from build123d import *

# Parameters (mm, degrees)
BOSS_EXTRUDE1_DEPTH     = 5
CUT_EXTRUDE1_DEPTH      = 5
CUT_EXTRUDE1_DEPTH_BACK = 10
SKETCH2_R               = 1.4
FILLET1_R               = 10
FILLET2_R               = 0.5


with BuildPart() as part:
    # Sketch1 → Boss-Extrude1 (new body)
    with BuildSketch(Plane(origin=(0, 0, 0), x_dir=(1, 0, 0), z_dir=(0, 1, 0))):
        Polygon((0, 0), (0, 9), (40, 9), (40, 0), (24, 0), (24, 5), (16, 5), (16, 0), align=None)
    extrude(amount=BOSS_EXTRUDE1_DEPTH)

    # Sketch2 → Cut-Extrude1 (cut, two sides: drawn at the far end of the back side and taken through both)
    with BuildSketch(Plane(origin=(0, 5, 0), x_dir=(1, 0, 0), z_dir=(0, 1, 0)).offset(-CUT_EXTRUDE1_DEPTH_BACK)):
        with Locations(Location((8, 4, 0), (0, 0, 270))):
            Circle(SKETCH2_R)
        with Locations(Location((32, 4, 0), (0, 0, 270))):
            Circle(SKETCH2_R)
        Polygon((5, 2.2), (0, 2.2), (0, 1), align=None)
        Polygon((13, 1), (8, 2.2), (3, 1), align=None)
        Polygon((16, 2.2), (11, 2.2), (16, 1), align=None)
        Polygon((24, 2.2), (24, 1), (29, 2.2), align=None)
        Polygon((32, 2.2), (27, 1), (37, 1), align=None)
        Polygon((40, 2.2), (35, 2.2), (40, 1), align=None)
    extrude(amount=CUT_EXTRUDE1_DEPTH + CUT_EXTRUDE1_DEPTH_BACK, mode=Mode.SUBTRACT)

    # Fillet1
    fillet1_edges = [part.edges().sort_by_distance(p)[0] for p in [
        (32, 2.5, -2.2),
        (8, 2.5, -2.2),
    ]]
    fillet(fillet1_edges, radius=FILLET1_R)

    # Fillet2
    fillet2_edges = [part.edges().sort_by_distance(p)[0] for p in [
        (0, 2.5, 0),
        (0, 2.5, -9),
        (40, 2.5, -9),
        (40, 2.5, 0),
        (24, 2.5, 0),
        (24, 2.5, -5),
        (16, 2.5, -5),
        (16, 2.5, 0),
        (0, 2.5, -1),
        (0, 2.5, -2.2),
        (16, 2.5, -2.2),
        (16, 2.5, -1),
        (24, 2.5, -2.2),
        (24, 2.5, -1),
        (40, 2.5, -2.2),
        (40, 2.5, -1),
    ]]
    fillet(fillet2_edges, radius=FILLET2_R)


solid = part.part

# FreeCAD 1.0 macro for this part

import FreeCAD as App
import Part
import Sketcher
from FreeCAD import Vector
Q = App.Units.Quantity


def edges_at(feature, points):
    """Names of the edges that pass closest to the given points."""
    edges = feature.Shape.Edges
    near = lambda p: min(range(len(edges)), key=lambda i: edges[i].distToShape(Part.Vertex(*p))[0])
    return sorted({f"Edge{near(p) + 1}" for p in points})


def add_polygon(sketch, points):
    """Adds a closed chain of lines whose ends are joined by coincident constraints."""
    first, n = sketch.GeometryCount, len(points)
    for a, b in zip(points, points[1:] + points[:1]):
        sketch.addGeometry(Part.LineSegment(App.Vector(*a, 0), App.Vector(*b, 0)), False)
    for i in range(n):
        sketch.addConstraint(Sketcher.Constraint("Coincident", first + i, 2, first + (i + 1) % n, 1))

doc = App.newDocument("Part")
body = doc.addObject("PartDesign::Body", "Body")

# Sketch on XZ plane
sketch1 = body.newObject("Sketcher::SketchObject", "Sketch")
sketch1.AttachmentSupport = (doc.getObject("XZ_Plane"), [""])
sketch1.MapMode = "FlatFace"
add_polygon(sketch1, [(0, -9), (0, 0), (16, 0), (16, -5), (24, -5), (24, 0), (40, 0), (40, -9)])  # lines 0-7
sketch1.addConstraint(Sketcher.Constraint("Vertical", 0))
sketch1.addConstraint(Sketcher.Constraint("Horizontal", 1))
sketch1.addConstraint(Sketcher.Constraint("Vertical", 2))
sketch1.addConstraint(Sketcher.Constraint("Horizontal", 3))
sketch1.addConstraint(Sketcher.Constraint("Vertical", 4))
sketch1.addConstraint(Sketcher.Constraint("Horizontal", 5))
sketch1.addConstraint(Sketcher.Constraint("Vertical", 6))
sketch1.addConstraint(Sketcher.Constraint("Horizontal", 7))
sketch1.addConstraint(Sketcher.Constraint("Coincident", 0, 2, -1, 1))
sketch1.addConstraint(Sketcher.Constraint("PointOnObject", 4, 2, -1))
sketch1.addConstraint(Sketcher.Constraint("Equal", 1, 5))
sketch1.addConstraint(Sketcher.Constraint("DistanceX", 1, 1, 1, 2, Q("16 mm")))
sketch1.addConstraint(Sketcher.Constraint("DistanceX", 3, 1, 3, 2, Q("8 mm")))
sketch1.addConstraint(Sketcher.Constraint("DistanceY", 0, 1, 0, 2, Q("9 mm")))
sketch1.addConstraint(Sketcher.Constraint("DistanceY", 2, 2, 2, 1, Q("5 mm")))
pad1 = body.newObject("PartDesign::Pad", "Pad")
pad1.Profile = sketch1
pad1.Length = 5
pad1.Reversed = True

# Sketch on XZ plane
sketch2 = body.newObject("Sketcher::SketchObject", "Sketch001")
sketch2.AttachmentSupport = (doc.getObject("XZ_Plane"), [""])
sketch2.MapMode = "FlatFace"
sketch2.AttachmentOffset = App.Placement(Vector(0, 0, -5), App.Rotation())
sketch2.addGeometry(Part.Circle(Vector(8, -4, 0), Vector(0, 0, 1), 1.4), False)  # 0
sketch2.addGeometry(Part.Circle(Vector(32, -4, 0), Vector(0, 0, 1), 1.4), False)  # 1
add_polygon(sketch2, [(5, -2.2), (0, -2.2), (0, -1)])  # lines 2-4
add_polygon(sketch2, [(13, -1), (8, -2.2), (3, -1)])  # lines 5-7
add_polygon(sketch2, [(16, -2.2), (11, -2.2), (16, -1)])  # lines 8-10
add_polygon(sketch2, [(24, -2.2), (24, -1), (29, -2.2)])  # lines 11-13
add_polygon(sketch2, [(32, -2.2), (27, -1), (37, -1)])  # lines 14-16
add_polygon(sketch2, [(40, -2.2), (35, -2.2), (40, -1)])  # lines 17-19
sketch2.addConstraint(Sketcher.Constraint("Horizontal", 2))
sketch2.addConstraint(Sketcher.Constraint("Vertical", 3))
sketch2.addConstraint(Sketcher.Constraint("Horizontal", 7))
sketch2.addConstraint(Sketcher.Constraint("Horizontal", 8))
sketch2.addConstraint(Sketcher.Constraint("Vertical", 10))
sketch2.addConstraint(Sketcher.Constraint("Vertical", 11))
sketch2.addConstraint(Sketcher.Constraint("Horizontal", 13))
sketch2.addConstraint(Sketcher.Constraint("Horizontal", 15))
sketch2.addConstraint(Sketcher.Constraint("Horizontal", 17))
sketch2.addConstraint(Sketcher.Constraint("Vertical", 19))
sketch2.addConstraint(Sketcher.Constraint("Equal", 0, 1))
sketch2.addConstraint(Sketcher.Constraint("PointOnObject", 2, 2, -2))
sketch2.addConstraint(Sketcher.Constraint("Parallel", 4, 6))
sketch2.addConstraint(Sketcher.Constraint("Parallel", 5, 9))
sketch2.addConstraint(Sketcher.Constraint("Parallel", 6, 12))
sketch2.addConstraint(Sketcher.Constraint("Parallel", 12, 14))
sketch2.addConstraint(Sketcher.Constraint("Parallel", 9, 16))
sketch2.addConstraint(Sketcher.Constraint("Parallel", 16, 18))
sketch2.addConstraint(Sketcher.Constraint("Horizontal", 0, 3, 1, 3))
sketch2.addConstraint(Sketcher.Constraint("Horizontal", 4, 2, 5, 2))
sketch2.addConstraint(Sketcher.Constraint("Horizontal", 3, 2, 6, 2))
sketch2.addConstraint(Sketcher.Constraint("Horizontal", 5, 2, 8, 2))
sketch2.addConstraint(Sketcher.Constraint("Horizontal", 7, 2, 9, 2))
sketch2.addConstraint(Sketcher.Constraint("Horizontal", 9, 2, 11, 2))
sketch2.addConstraint(Sketcher.Constraint("Horizontal", 10, 2, 12, 2))
sketch2.addConstraint(Sketcher.Constraint("Horizontal", 11, 2, 14, 2))
sketch2.addConstraint(Sketcher.Constraint("Horizontal", 13, 2, 16, 2))
sketch2.addConstraint(Sketcher.Constraint("Horizontal", 16, 2, 17, 2))
sketch2.addConstraint(Sketcher.Constraint("Horizontal", 15, 2, 18, 2))
sketch2.addConstraint(Sketcher.Constraint("Vertical", 0, 3, 5, 2))
sketch2.addConstraint(Sketcher.Constraint("Vertical", 1, 3, 16, 2))
sketch2.addConstraint(Sketcher.Constraint("Equal", 2, 8))
sketch2.addConstraint(Sketcher.Constraint("Diameter", 0, Q("2.8 mm")))
sketch2.addConstraint(Sketcher.Constraint("DistanceX", 2, 2, 2, 1, Q("5 mm")))
sketch2.addConstraint(Sketcher.Constraint("DistanceY", 3, 1, 3, 2, Q("1.2 mm")))
sketch2.addConstraint(Sketcher.Constraint("DistanceX", -1, 1, 0, 3, Q("8 mm")))
sketch2.addConstraint(Sketcher.Constraint("DistanceY", 0, 3, -1, 1, Q("4 mm")))
sketch2.addConstraint(Sketcher.Constraint("DistanceX", -1, 1, 1, 3, Q("32 mm")))
sketch2.addConstraint(Sketcher.Constraint("DistanceY", 3, 2, -1, 1, Q("1 mm")))
sketch2.addConstraint(Sketcher.Constraint("DistanceX", -1, 1, 8, 2, Q("11 mm")))
sketch2.addConstraint(Sketcher.Constraint("DistanceX", -1, 1, 11, 2, Q("24 mm")))
sketch2.addConstraint(Sketcher.Constraint("DistanceX", -1, 1, 17, 2, Q("35 mm")))
pocket1 = body.newObject("PartDesign::Pocket", "Pocket")
pocket1.Profile = sketch2
pocket1.Type = "ThroughAll"
pocket1.Midplane = True
doc.recompute()

fillet = body.newObject("PartDesign::Fillet", "Fillet")
fillet.Base = (pocket1, edges_at(pocket1, [(32, 2.5, -2.2), (8, 2.5, -2.2)]))
fillet.Radius = 10
doc.recompute()

fillet2 = body.newObject("PartDesign::Fillet", "Fillet001")
fillet2.Base = (fillet, edges_at(fillet, [
    (0, 2.5, 0),
    (0, 2.5, -9),
    (40, 2.5, -9),
    (40, 2.5, 0),
    (24, 2.5, 0),
    (24, 2.5, -5),
    (16, 2.5, -5),
    (16, 2.5, 0),
    (0, 2.5, -1),
    (0, 2.5, -2.2),
    (16, 2.5, -2.2),
    (16, 2.5, -1),
    (24, 2.5, -2.2),
    (24, 2.5, -1),
    (40, 2.5, -2.2),
    (40, 2.5, -1),
]))
fillet2.Radius = 0.5

doc.recompute()
